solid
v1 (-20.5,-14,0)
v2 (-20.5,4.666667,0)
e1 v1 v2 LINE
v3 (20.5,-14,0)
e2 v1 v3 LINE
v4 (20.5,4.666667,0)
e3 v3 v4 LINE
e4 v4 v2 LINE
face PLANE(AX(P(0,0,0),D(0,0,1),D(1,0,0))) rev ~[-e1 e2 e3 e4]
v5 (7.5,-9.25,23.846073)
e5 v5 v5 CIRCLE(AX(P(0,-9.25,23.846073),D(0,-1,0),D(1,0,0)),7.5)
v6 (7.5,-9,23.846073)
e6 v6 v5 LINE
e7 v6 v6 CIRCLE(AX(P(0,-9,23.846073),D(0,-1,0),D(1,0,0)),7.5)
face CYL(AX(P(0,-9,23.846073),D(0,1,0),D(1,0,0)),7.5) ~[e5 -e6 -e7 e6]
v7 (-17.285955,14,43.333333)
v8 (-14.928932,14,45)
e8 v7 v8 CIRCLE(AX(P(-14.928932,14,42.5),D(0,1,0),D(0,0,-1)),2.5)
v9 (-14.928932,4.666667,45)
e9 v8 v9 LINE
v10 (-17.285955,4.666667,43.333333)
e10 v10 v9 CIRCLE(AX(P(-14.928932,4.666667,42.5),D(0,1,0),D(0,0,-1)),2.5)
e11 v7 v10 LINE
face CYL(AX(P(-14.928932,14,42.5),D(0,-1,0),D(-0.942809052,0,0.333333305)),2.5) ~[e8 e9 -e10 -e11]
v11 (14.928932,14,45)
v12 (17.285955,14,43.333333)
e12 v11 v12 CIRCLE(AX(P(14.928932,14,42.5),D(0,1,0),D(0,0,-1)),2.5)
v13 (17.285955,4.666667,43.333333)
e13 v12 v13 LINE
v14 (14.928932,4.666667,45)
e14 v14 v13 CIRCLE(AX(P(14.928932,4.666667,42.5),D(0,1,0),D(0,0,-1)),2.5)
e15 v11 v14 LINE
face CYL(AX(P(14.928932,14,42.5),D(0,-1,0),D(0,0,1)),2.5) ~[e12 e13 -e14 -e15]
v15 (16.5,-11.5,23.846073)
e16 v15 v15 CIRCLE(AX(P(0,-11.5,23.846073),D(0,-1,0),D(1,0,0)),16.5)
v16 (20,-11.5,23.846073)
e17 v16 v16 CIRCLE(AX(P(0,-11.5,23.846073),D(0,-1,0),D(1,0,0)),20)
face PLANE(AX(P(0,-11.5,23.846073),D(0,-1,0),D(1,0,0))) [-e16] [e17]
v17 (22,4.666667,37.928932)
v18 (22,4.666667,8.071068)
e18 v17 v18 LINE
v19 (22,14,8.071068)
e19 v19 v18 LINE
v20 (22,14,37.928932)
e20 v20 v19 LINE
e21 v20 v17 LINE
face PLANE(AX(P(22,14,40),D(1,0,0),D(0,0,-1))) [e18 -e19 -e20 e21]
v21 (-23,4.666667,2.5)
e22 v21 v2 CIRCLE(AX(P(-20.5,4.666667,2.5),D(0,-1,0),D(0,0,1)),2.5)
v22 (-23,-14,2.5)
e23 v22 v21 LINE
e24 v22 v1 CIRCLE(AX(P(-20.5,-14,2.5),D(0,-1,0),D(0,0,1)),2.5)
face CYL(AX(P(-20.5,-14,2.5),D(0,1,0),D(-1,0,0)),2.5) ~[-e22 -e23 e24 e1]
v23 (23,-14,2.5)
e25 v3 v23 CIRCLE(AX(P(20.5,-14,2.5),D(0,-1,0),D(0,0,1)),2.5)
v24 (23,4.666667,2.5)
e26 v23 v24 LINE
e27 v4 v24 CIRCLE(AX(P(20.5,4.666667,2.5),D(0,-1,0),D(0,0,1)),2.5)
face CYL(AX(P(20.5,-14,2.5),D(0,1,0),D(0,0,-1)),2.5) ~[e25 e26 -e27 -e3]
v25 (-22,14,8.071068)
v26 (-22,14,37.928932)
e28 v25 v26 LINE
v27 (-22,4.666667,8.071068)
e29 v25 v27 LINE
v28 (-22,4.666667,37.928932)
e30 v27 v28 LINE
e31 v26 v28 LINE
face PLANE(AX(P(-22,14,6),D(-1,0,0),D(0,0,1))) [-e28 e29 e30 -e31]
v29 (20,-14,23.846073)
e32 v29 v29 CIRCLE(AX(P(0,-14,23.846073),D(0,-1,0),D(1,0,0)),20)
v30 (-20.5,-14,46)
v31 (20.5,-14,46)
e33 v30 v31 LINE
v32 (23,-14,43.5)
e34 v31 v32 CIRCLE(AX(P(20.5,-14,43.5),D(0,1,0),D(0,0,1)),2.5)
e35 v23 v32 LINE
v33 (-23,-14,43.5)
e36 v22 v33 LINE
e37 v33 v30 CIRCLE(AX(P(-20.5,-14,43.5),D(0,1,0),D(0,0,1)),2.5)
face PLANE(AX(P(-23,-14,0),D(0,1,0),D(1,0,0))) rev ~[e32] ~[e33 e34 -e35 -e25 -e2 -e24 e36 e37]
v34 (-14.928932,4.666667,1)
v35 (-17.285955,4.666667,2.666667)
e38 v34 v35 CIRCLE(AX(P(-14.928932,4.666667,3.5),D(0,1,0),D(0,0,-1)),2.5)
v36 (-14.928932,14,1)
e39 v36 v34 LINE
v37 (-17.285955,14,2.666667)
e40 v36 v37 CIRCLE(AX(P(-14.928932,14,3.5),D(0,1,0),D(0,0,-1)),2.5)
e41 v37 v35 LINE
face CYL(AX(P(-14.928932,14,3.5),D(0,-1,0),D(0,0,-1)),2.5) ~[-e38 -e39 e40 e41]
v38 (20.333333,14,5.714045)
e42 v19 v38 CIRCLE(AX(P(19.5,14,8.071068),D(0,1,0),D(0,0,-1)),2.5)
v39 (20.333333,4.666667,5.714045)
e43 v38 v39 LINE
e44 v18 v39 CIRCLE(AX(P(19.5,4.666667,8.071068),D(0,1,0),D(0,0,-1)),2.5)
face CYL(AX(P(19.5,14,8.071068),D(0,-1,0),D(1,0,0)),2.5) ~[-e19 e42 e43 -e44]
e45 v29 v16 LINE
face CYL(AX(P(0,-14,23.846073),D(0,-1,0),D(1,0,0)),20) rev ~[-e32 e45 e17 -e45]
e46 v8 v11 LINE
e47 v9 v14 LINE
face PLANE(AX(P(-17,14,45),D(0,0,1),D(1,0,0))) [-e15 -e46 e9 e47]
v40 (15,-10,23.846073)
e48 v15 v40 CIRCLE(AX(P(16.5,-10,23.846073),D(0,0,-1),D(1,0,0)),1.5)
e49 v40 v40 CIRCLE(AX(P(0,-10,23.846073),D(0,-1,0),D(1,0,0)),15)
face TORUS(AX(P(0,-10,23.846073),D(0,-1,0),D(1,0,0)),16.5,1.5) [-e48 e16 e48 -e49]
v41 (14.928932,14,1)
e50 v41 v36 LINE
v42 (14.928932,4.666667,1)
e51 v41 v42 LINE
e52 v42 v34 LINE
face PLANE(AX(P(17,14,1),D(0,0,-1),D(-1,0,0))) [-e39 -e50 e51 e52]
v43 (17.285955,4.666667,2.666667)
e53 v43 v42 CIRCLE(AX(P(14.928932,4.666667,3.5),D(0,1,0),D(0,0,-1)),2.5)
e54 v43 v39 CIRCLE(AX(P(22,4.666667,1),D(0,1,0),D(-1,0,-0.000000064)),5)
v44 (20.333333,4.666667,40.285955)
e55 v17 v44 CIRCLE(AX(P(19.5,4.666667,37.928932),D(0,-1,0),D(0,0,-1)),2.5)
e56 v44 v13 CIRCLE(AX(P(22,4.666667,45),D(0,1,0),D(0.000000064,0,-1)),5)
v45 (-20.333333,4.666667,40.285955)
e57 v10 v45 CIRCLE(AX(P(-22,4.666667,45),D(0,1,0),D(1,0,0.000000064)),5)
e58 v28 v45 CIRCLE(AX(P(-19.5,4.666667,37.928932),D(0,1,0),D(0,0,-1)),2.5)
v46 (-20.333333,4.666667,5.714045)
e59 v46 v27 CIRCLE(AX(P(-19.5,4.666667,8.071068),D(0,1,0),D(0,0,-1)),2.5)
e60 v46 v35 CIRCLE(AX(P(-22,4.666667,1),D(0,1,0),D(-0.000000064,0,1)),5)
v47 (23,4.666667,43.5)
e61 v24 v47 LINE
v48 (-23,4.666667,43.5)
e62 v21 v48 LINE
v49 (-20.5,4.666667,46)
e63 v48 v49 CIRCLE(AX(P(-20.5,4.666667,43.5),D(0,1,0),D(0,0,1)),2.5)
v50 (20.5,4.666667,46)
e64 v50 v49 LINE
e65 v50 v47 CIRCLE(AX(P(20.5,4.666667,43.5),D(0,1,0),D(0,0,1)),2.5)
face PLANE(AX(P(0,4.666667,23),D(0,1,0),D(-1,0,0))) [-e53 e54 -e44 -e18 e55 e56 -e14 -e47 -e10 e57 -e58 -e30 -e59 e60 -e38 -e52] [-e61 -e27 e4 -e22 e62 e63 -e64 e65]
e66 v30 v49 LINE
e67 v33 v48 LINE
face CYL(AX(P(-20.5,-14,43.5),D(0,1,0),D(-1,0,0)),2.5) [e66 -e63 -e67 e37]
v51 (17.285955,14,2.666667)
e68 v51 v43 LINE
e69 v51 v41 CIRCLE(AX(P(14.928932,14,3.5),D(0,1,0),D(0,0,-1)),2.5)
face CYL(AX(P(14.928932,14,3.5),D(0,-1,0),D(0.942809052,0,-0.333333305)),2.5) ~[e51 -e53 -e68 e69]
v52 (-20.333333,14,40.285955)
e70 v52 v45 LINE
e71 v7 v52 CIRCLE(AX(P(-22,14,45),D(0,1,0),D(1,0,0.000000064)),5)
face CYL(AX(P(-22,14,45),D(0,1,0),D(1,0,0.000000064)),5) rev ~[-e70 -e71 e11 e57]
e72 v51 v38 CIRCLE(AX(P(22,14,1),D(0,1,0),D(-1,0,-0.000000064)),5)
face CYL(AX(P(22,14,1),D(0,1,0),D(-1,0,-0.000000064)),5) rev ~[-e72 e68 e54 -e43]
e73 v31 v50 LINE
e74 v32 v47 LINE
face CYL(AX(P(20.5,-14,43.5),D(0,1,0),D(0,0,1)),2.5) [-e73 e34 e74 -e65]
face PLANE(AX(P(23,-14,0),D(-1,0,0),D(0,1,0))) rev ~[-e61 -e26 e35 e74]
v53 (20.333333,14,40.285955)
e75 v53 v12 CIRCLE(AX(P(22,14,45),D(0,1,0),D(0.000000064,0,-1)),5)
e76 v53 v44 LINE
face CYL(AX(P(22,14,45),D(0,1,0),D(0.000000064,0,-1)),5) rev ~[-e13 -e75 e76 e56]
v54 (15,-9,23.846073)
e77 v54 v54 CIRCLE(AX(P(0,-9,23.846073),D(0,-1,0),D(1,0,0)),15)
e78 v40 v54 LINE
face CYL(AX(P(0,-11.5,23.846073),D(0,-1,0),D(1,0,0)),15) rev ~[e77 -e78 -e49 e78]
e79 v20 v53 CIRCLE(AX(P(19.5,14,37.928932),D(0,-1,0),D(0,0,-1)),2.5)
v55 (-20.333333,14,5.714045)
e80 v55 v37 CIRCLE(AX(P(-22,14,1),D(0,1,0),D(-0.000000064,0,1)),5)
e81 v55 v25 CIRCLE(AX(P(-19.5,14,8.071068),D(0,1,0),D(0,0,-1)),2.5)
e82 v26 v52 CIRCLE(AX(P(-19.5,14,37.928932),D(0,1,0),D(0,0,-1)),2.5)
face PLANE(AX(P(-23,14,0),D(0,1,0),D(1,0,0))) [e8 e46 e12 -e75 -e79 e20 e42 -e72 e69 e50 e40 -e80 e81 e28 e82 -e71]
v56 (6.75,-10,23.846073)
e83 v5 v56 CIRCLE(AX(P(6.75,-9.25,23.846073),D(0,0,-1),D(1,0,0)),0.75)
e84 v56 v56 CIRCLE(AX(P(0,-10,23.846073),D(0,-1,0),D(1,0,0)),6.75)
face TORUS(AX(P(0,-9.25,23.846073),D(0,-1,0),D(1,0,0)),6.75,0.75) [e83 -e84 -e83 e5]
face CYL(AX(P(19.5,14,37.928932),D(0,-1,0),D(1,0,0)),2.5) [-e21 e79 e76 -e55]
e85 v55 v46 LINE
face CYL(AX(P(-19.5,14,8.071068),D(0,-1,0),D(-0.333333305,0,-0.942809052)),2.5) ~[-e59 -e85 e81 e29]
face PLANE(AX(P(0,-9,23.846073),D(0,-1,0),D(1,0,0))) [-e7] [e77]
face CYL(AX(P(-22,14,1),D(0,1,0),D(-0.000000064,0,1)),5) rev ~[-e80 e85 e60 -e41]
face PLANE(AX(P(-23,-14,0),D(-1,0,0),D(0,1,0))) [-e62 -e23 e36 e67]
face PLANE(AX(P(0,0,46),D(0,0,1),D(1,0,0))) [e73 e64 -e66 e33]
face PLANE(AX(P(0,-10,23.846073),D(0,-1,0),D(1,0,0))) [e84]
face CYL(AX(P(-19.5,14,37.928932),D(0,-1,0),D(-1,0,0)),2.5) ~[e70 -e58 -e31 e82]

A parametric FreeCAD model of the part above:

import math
import FreeCAD as App
import Part
import Sketcher
from FreeCAD import Vector


def edges_at(feature, points):
    """Names of the edges that pass closest to the given points."""
    edges = feature.Shape.Edges
    near = lambda p: min(range(len(edges)), key=lambda i: edges[i].distToShape(Part.Vertex(*p))[0])
    return sorted({f"Edge{near(p) + 1}" for p in points})

doc = App.newDocument("Part")
params = doc.addObject("Spreadsheet::Sheet", "Params")
for row, (alias, value) in enumerate([
    ("sketch1_width", "46 mm"),
    ("sketch1_height", "28 mm"),
    ("pad1_length", "46 mm"),
    ("sketch2_radius", "5 mm"),
    ("sketch2_width", "46 mm"),
    ("sketch2_width2", "34 mm"),
    ("pocket1_length", "9.333333 mm"),
    ("fillet_radius", "2.5 mm"),
    ("sketch3_diameter", "40 mm"),
    ("pocket2_length", "2.5 mm"),
    ("sketch4_diameter", "30 mm"),
    ("pocket3_length", "2.5 mm"),
    ("sketch5_diameter", "15 mm"),
    ("pad2_length", "1 mm"),
    ("fillet2_radius", "1.5 mm"),
    ("fillet3_radius", "0.75 mm"),
], start=1):
    params.set(f"A{row}", alias)
    params.set(f"B{row}", "=" + value)
    params.setAlias(f"B{row}", alias)

body = doc.addObject("PartDesign::Body", "Body")

sketch1 = body.newObject("Sketcher::SketchObject", "Sketch")
sketch1.AttachmentSupport = (doc.getObject("XY_Plane"), [""])
sketch1.MapMode = "FlatFace"
sketch1.addGeometry([
    Part.LineSegment(Vector(-23, 14, 0), Vector(-23, -14, 0)),
    Part.LineSegment(Vector(-23, -14, 0), Vector(23, -14, 0)),
    Part.LineSegment(Vector(23, -14, 0), Vector(23, 14, 0)),
    Part.LineSegment(Vector(23, 14, 0), Vector(-23, 14, 0)),
], False)
sketch1.addConstraint([
    Sketcher.Constraint("Coincident", 0, 2, 1, 1),
    Sketcher.Constraint("Coincident", 1, 2, 2, 1),
    Sketcher.Constraint("Coincident", 2, 2, 3, 1),
    Sketcher.Constraint("Coincident", 3, 2, 0, 1),
    Sketcher.Constraint("Vertical", 0),
    Sketcher.Constraint("Horizontal", 1),
    Sketcher.Constraint("Vertical", 2),
    Sketcher.Constraint("Horizontal", 3),
    Sketcher.Constraint("Symmetric", 0, 2, 2, 2, -1, 1),
    Sketcher.Constraint("DistanceX", 1, 1, 1, 2, 46.0),
    Sketcher.Constraint("DistanceY", 0, 2, 0, 1, 28.0),
])
sketch1.setExpression("Constraints[9]", "Params.sketch1_width")
sketch1.setExpression("Constraints[10]", "Params.sketch1_height")
pad1 = body.newObject("PartDesign::Pad", "Pad")
pad1.Profile = sketch1
pad1.setExpression("Length", "Params.pad1_length")

sketch2 = body.newObject("Sketcher::SketchObject", "Sketch001")
sketch2.AttachmentSupport = (doc.getObject("XZ_Plane"), [""])
sketch2.MapMode = "FlatFace"
sketch2.AttachmentOffset = App.Placement(Vector(0, 0, -14), App.Rotation())
sketch2.addGeometry([
    Part.LineSegment(Vector(23, 46, 0), Vector(23, 0, 0)),
    Part.LineSegment(Vector(23, 0, 0), Vector(-23, 0, 0)),
    Part.LineSegment(Vector(-23, 0, 0), Vector(-23, 46, 0)),
    Part.LineSegment(Vector(-23, 46, 0), Vector(23, 46, 0)),
    Part.LineSegment(Vector(22, 6, 0), Vector(22, 40, 0)),
    Part.ArcOfCircle(Part.Circle(Vector(22, 45, 0), Vector(0, 0, 1), 5), math.radians(180), math.radians(270)),
    Part.LineSegment(Vector(17, 45, 0), Vector(-17, 45, 0)),
    Part.ArcOfCircle(Part.Circle(Vector(-22, 45, 0), Vector(0, 0, 1), 5), math.radians(-90), math.radians(0)),
    Part.LineSegment(Vector(-22, 40, 0), Vector(-22, 6, 0)),
    Part.ArcOfCircle(Part.Circle(Vector(-22, 1, 0), Vector(0, 0, 1), 5), math.radians(0), math.radians(90)),
    Part.LineSegment(Vector(-17, 1, 0), Vector(17, 1, 0)),
    Part.ArcOfCircle(Part.Circle(Vector(22, 1, 0), Vector(0, 0, 1), 5), math.radians(90), math.radians(180)),
], False)
sketch2.addConstraint([
    Sketcher.Constraint("Coincident", 0, 2, 1, 1),
    Sketcher.Constraint("Coincident", 1, 2, 2, 1),
    Sketcher.Constraint("Coincident", 2, 2, 3, 1),
    Sketcher.Constraint("Coincident", 3, 2, 0, 1),
    Sketcher.Constraint("Coincident", 4, 2, 5, 2),
    Sketcher.Constraint("Coincident", 5, 1, 6, 1),
    Sketcher.Constraint("Coincident", 6, 2, 7, 2),
    Sketcher.Constraint("Coincident", 7, 1, 8, 1),
    Sketcher.Constraint("Coincident", 8, 2, 9, 2),
    Sketcher.Constraint("Coincident", 9, 1, 10, 1),
    Sketcher.Constraint("Coincident", 10, 2, 11, 2),
    Sketcher.Constraint("Coincident", 11, 1, 4, 1),
    Sketcher.Constraint("Vertical", 0),
    Sketcher.Constraint("Horizontal", 1),
    Sketcher.Constraint("Vertical", 2),
    Sketcher.Constraint("Horizontal", 3),
    Sketcher.Constraint("Vertical", 4),
    Sketcher.Constraint("Horizontal", 6),
    Sketcher.Constraint("Vertical", 8),
    Sketcher.Constraint("Horizontal", 10),
    Sketcher.Constraint("Equal", 5, 7),
    Sketcher.Constraint("Equal", 7, 9),
    Sketcher.Constraint("Equal", 9, 11),
    Sketcher.Constraint("Symmetric", 0, 2, 1, 2, -1, 1),
    Sketcher.Constraint("Symmetric", 5, 3, 7, 3, -2),
    Sketcher.Constraint("Symmetric", 9, 3, 11, 3, -2),
    Sketcher.Constraint("Horizontal", 7, 3, 5, 1),
    Sketcher.Constraint("Horizontal", 11, 3, 9, 1),
    Sketcher.Constraint("Vertical", 7, 3, 9, 3),
    Sketcher.Constraint("Vertical", 11, 3, 4, 2),
    Sketcher.Constraint("Vertical", 9, 3, 7, 1),
    Sketcher.Constraint("Equal", 3, 0),
    Sketcher.Constraint("Equal", 10, 4),
    Sketcher.Constraint("Radius", 5, 5.0),
    Sketcher.Constraint("DistanceX", 1, 2, 1, 1, 46.0),
    Sketcher.Constraint("DistanceX", 6, 2, 6, 1, 34.0),
    Sketcher.Constraint("DistanceY", -1, 1, 5, 3, 45.0),
])
sketch2.setExpression("Constraints[33]", "Params.sketch2_radius")
sketch2.setExpression("Constraints[34]", "Params.sketch2_width")
sketch2.setExpression("Constraints[35]", "Params.sketch2_width2")
pocket1 = body.newObject("PartDesign::Pocket", "Pocket")
pocket1.Profile = sketch2
pocket1.setExpression("Length", "Params.pocket1_length")
pocket1.Reversed = True
doc.recompute()

fillet = body.newObject("PartDesign::Fillet", "Fillet")
fillet.Base = (pocket1, edges_at(pocket1, [
    (23, -4.667, 46),
    (-23, -4.667, 46),
    (-23, -4.667, 0),
    (23, -4.667, 0),
    (-22, 9.333, 6),
    (-17, 9.333, 1),
    (17, 9.333, 1),
    (22, 9.333, 6),
    (22, 9.333, 40),
    (17, 9.333, 45),
    (-17, 9.333, 45),
    (-22, 9.333, 40),
]))
fillet.setExpression("Radius", "Params.fillet_radius")

sketch3 = body.newObject("Sketcher::SketchObject", "Sketch002")
sketch3.AttachmentSupport = (doc.getObject("XZ_Plane"), [""])
sketch3.MapMode = "FlatFace"
sketch3.AttachmentOffset = App.Placement(Vector(0, 0, 14), App.Rotation())
sketch3.addGeometry(Part.Circle(Vector(0, 24, 0), Vector(0, 0, 1), 20), False)
sketch3.addConstraint([
    Sketcher.Constraint("PointOnObject", 0, 3, -2),
    Sketcher.Constraint("Diameter", 0, 40.0),
    Sketcher.Constraint("DistanceY", -1, 1, 0, 3, 23.846073),
])
sketch3.setExpression("Constraints[1]", "Params.sketch3_diameter")
pocket2 = body.newObject("PartDesign::Pocket", "Pocket001")
pocket2.Profile = sketch3
pocket2.setExpression("Length", "Params.pocket2_length")

sketch4 = body.newObject("Sketcher::SketchObject", "Sketch003")
sketch4.AttachmentSupport = (doc.getObject("XZ_Plane"), [""])
sketch4.MapMode = "FlatFace"
sketch4.AttachmentOffset = App.Placement(Vector(0, 0, 11.5), App.Rotation())
sketch4.addGeometry(Part.Circle(Vector(0, 24, 0), Vector(0, 0, 1), 15), False)
sketch4.addConstraint([
    Sketcher.Constraint("PointOnObject", 0, 3, -2),
    Sketcher.Constraint("Diameter", 0, 30.0),
    Sketcher.Constraint("DistanceY", -1, 1, 0, 3, 23.846073),
])
sketch4.setExpression("Constraints[1]", "Params.sketch4_diameter")
pocket3 = body.newObject("PartDesign::Pocket", "Pocket002")
pocket3.Profile = sketch4
pocket3.setExpression("Length", "Params.pocket3_length")

sketch5 = body.newObject("Sketcher::SketchObject", "Sketch004")
sketch5.AttachmentSupport = (doc.getObject("XZ_Plane"), [""])
sketch5.MapMode = "FlatFace"
sketch5.AttachmentOffset = App.Placement(Vector(0, 0, 9), App.Rotation())
sketch5.addGeometry(Part.Circle(Vector(0, 24, 0), Vector(0, 0, 1), 8), False)
sketch5.addConstraint([
    Sketcher.Constraint("PointOnObject", 0, 3, -2),
    Sketcher.Constraint("Diameter", 0, 15.0),
    Sketcher.Constraint("DistanceY", -1, 1, 0, 3, 23.846073),
])
sketch5.setExpression("Constraints[1]", "Params.sketch5_diameter")
pad2 = body.newObject("PartDesign::Pad", "Pad001")
pad2.Profile = sketch5
pad2.setExpression("Length", "Params.pad2_length")
doc.recompute()

fillet2 = body.newObject("PartDesign::Fillet", "Fillet001")
fillet2.Base = (pad2, edges_at(pad2, [(-15, -11.5, 23.846)]))
fillet2.setExpression("Radius", "Params.fillet2_radius")
doc.recompute()

fillet3 = body.newObject("PartDesign::Fillet", "Fillet002")
fillet3.Base = (fillet2, edges_at(fillet2, [(-7.5, -10, 23.846)]))
fillet3.setExpression("Radius", "Params.fillet3_radius")

doc.recompute()
